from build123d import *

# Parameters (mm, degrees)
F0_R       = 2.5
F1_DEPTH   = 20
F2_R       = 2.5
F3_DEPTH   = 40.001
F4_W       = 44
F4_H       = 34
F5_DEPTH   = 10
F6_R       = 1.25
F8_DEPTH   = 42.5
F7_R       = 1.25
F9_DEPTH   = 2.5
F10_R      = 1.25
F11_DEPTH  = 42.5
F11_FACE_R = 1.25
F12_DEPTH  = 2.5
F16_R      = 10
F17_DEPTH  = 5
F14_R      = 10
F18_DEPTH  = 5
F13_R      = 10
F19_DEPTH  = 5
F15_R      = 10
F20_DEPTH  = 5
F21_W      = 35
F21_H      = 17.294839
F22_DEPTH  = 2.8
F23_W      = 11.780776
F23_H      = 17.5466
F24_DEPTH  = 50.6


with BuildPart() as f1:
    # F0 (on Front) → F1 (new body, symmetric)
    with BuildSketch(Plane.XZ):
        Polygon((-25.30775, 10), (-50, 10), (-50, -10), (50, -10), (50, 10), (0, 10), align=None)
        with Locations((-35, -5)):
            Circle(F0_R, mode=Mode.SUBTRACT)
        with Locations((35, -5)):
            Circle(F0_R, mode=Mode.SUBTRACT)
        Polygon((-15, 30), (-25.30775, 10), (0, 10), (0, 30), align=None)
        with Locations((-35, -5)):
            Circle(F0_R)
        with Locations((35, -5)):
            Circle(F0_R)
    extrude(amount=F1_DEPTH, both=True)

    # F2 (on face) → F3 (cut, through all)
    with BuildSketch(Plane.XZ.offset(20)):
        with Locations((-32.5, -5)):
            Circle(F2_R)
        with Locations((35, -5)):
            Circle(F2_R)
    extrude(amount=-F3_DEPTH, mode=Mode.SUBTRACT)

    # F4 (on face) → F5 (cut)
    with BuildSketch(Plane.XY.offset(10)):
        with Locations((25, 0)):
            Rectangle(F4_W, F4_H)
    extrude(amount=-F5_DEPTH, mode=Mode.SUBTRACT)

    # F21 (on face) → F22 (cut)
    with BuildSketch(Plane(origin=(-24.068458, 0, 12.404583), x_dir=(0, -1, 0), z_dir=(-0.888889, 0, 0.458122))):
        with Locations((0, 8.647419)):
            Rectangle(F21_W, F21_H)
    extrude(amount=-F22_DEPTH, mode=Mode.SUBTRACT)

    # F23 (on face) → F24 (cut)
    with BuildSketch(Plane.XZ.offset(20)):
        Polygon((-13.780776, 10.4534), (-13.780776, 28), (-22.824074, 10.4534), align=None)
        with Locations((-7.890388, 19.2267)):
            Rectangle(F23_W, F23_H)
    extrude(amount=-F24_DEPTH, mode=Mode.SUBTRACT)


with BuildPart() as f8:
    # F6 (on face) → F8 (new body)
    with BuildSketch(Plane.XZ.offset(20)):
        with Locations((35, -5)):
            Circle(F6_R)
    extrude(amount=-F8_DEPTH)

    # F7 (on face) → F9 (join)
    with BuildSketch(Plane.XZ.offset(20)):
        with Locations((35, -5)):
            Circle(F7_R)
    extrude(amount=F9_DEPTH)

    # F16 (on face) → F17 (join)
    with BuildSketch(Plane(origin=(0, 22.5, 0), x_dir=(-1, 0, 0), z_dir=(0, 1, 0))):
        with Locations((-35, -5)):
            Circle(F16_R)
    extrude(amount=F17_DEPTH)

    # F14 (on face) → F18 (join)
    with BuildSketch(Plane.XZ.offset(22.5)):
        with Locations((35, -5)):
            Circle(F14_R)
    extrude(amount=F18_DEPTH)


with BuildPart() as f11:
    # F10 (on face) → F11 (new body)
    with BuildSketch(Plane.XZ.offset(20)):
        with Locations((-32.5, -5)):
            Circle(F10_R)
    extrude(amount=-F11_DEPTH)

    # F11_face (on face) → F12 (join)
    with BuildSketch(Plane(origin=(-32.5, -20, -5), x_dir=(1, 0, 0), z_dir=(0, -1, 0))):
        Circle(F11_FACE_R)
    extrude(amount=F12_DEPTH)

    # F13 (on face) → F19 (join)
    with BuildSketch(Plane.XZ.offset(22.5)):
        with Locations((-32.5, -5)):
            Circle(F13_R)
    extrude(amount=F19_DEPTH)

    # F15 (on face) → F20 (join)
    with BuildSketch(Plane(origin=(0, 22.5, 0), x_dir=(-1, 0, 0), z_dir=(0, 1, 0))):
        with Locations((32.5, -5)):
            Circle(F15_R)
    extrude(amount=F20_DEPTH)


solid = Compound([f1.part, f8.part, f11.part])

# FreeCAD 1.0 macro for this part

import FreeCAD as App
import Part
import Sketcher


def add_polygon(sketch, points):
    """Adds a closed chain of lines whose ends are joined by coincident constraints."""
    first, n = sketch.GeometryCount, len(points)
    for a, b in zip(points, points[1:] + points[:1]):
        sketch.addGeometry(Part.LineSegment(App.Vector(*a, 0), App.Vector(*b, 0)), False)
    for i in range(n):
        sketch.addConstraint(Sketcher.Constraint("Coincident", first + i, 2, first + (i + 1) % n, 1))

doc = App.newDocument("Part")
body = doc.addObject("PartDesign::Body", "Body")

# Sketch on XZ plane
sketch1 = doc.addObject("Sketcher::SketchObject", "Sketch")
body.addObject(sketch1)
sketch1.AttachmentSupport = (doc.XZ_Plane, [""])
sketch1.MapMode = "FlatFace"
add_polygon(sketch1, [(-50, 10), (-50, -10), (50, -10), (50, 10), (0, 10), (0, 30), (-15, 30), (-25, 10)])  # lines 0-7
sketch1.addConstraint([
    Sketcher.Constraint("Vertical", 0),
    Sketcher.Constraint("Horizontal", 1),
    Sketcher.Constraint("Vertical", 2),
    Sketcher.Constraint("Horizontal", 3),
    Sketcher.Constraint("Vertical", 4),
    Sketcher.Constraint("Horizontal", 5),
    Sketcher.Constraint("Horizontal", 7),
    Sketcher.Constraint("Symmetric", 0, 2, 2, 2, -1, 1),
    Sketcher.Constraint("PointOnObject", 3, 2, -2),
    Sketcher.Constraint("Horizontal", 3, 2, 6, 2),
    Sketcher.Constraint("Equal", 2, 4),
    Sketcher.Constraint("DistanceX", 1, 1, 1, 2, 100.0),
    Sketcher.Constraint("DistanceX", 5, 2, 5, 1, 15.0),
    Sketcher.Constraint("DistanceY", 0, 2, 0, 1, 20.0),
    Sketcher.Constraint("DistanceX", 7, 2, 7, 1, 24.69225),
])
pad1 = doc.addObject("PartDesign::Pad", "Pad")
body.addObject(pad1)
pad1.Profile = sketch1
pad1.Length = 40
pad1.Midplane = True

# Sketch on XZ plane
sketch2 = doc.addObject("Sketcher::SketchObject", "Sketch001")
body.addObject(sketch2)
sketch2.AttachmentSupport = (doc.XZ_Plane, [""])
sketch2.MapMode = "FlatFace"
sketch2.AttachmentOffset = App.Placement(App.Vector(0, 0, 20), App.Rotation())
sketch2.addGeometry([
    Part.Circle(App.Vector(-32.5, -5, 0), App.Vector(0, 0, 1), 2.5),
    Part.Circle(App.Vector(35, -5, 0), App.Vector(0, 0, 1), 2.5),
], False)
sketch2.addConstraint([
    Sketcher.Constraint("Equal", 0, 1),
    Sketcher.Constraint("Horizontal", 0, 3, 1, 3),
    Sketcher.Constraint("Diameter", 0, 5.0),
    Sketcher.Constraint("DistanceY", 0, 3, -1, 1, 5.0),
    Sketcher.Constraint("DistanceX", -1, 1, 1, 3, 35.0),
    Sketcher.Constraint("DistanceX", 0, 3, -1, 1, 32.5),
])
pocket1 = doc.addObject("PartDesign::Pocket", "Pocket")
body.addObject(pocket1)
pocket1.Profile = sketch2
pocket1.Type = "ThroughAll"

# Sketch on XY plane
sketch3 = doc.addObject("Sketcher::SketchObject", "Sketch002")
body.addObject(sketch3)
sketch3.AttachmentSupport = (doc.XY_Plane, [""])
sketch3.MapMode = "FlatFace"
sketch3.AttachmentOffset = App.Placement(App.Vector(0, 0, 10), App.Rotation())
add_polygon(sketch3, [(3, 17), (3, -17), (47, -17), (47, 17)])  # lines 0-3
sketch3.addConstraint([
    Sketcher.Constraint("Vertical", 0),
    Sketcher.Constraint("Horizontal", 1),
    Sketcher.Constraint("Vertical", 2),
    Sketcher.Constraint("Horizontal", 3),
    Sketcher.Constraint("DistanceX", 1, 1, 1, 2, 44.0),
    Sketcher.Constraint("DistanceY", 0, 2, 0, 1, 34.0),
    Sketcher.Constraint("DistanceX", -1, 1, 0, 2, 3.0),
    Sketcher.Constraint("DistanceY", 0, 2, -1, 1, 17.0),
])
pocket2 = doc.addObject("PartDesign::Pocket", "Pocket001")
body.addObject(pocket2)
pocket2.Profile = sketch3
pocket2.Length = 10

# Sketch on an angled plane
sketch4 = doc.addObject("Sketcher::SketchObject", "Sketch003")
body.addObject(sketch4)
sketch4.Placement = App.Placement(App.Vector(-24.068458, 0, 12.404583), App.Rotation(App.Vector(0, -1, 0), App.Vector(0.458122133, 0, 0.888889257), App.Vector(-0.888889257, 0, 0.458122133), "ZXY"))
add_polygon(sketch4, [(-18, 17), (-18, 0), (18, 0), (18, 17)])  # lines 0-3
sketch4.addConstraint([
    Sketcher.Constraint("Vertical", 0),
    Sketcher.Constraint("Horizontal", 1),
    Sketcher.Constraint("Vertical", 2),
    Sketcher.Constraint("Horizontal", 3),
    Sketcher.Constraint("Symmetric", 0, 2, 1, 2, -1, 1),
    Sketcher.Constraint("DistanceX", 1, 1, 1, 2, 35.0),
    Sketcher.Constraint("DistanceY", 0, 2, 0, 1, 17.294839),
])
pocket3 = doc.addObject("PartDesign::Pocket", "Pocket002")
body.addObject(pocket3)
pocket3.Profile = sketch4
pocket3.Length = 2.8

# Sketch on XZ plane
sketch5 = doc.addObject("Sketcher::SketchObject", "Sketch004")
body.addObject(sketch5)
sketch5.AttachmentSupport = (doc.XZ_Plane, [""])
sketch5.MapMode = "FlatFace"
sketch5.AttachmentOffset = App.Placement(App.Vector(0, 0, 20), App.Rotation())
add_polygon(sketch5, [(-14, 28), (-23, 10), (-2, 10), (-2, 28)])  # lines 0-3
sketch5.addConstraint([
    Sketcher.Constraint("Horizontal", 1),
    Sketcher.Constraint("Vertical", 2),
    Sketcher.Constraint("Horizontal", 3),
    Sketcher.Constraint("DistanceX", 1, 2, -1, 1, 2.0),
    Sketcher.Constraint("DistanceY", -1, 1, 2, 2, 28.0),
    Sketcher.Constraint("DistanceY", 2, 1, 2, 2, 17.5466),
    Sketcher.Constraint("Distance", 0, 19.739919),
    Sketcher.Constraint("DistanceX", 1, 1, 1, 2, 20.824074),
])
pocket4 = doc.addObject("PartDesign::Pocket", "Pocket003")
body.addObject(pocket4)
pocket4.Profile = sketch5
pocket4.Length = 50.6
body2 = doc.addObject("PartDesign::Body", "Body001")

# Sketch on XZ plane
sketch6 = doc.addObject("Sketcher::SketchObject", "Sketch005")
body2.addObject(sketch6)
sketch6.AttachmentSupport = (doc.getObject("XZ_Plane001"), [""])
sketch6.MapMode = "FlatFace"
sketch6.AttachmentOffset = App.Placement(App.Vector(0, 0, 20), App.Rotation())
sketch6.addGeometry(Part.Circle(App.Vector(35, -5, 0), App.Vector(0, 0, 1), 1.2), False)
sketch6.addConstraint([
    Sketcher.Constraint("Diameter", 0, 2.5),
    Sketcher.Constraint("DistanceX", -1, 1, 0, 3, 35.0),
    Sketcher.Constraint("DistanceY", 0, 3, -1, 1, 5.0),
])
pad2 = doc.addObject("PartDesign::Pad", "Pad001")
body2.addObject(pad2)
pad2.Profile = sketch6
pad2.Length = 42.5
pad2.Reversed = True

# Sketch on XZ plane
sketch7 = doc.addObject("Sketcher::SketchObject", "Sketch006")
body2.addObject(sketch7)
sketch7.AttachmentSupport = (doc.getObject("XZ_Plane001"), [""])
sketch7.MapMode = "FlatFace"
sketch7.AttachmentOffset = App.Placement(App.Vector(0, 0, 20), App.Rotation())
sketch7.addGeometry(Part.Circle(App.Vector(35, -5, 0), App.Vector(0, 0, 1), 1.2), False)
sketch7.addConstraint([
    Sketcher.Constraint("Diameter", 0, 2.5),
    Sketcher.Constraint("DistanceX", -1, 1, 0, 3, 35.0),
    Sketcher.Constraint("DistanceY", 0, 3, -1, 1, 5.0),
])
pad3 = doc.addObject("PartDesign::Pad", "Pad002")
body2.addObject(pad3)
pad3.Profile = sketch7
pad3.Length = 2.5

# Sketch on XZ plane
sketch8 = doc.addObject("Sketcher::SketchObject", "Sketch007")
body2.addObject(sketch8)
sketch8.AttachmentSupport = (doc.getObject("XZ_Plane001"), [""])
sketch8.MapMode = "FlatFace"
sketch8.AttachmentOffset = App.Placement(App.Vector(0, 0, -22.5), App.Rotation())
sketch8.addGeometry(Part.Circle(App.Vector(35, -5, 0), App.Vector(0, 0, 1), 10), False)
sketch8.addConstraint([
    Sketcher.Constraint("Diameter", 0, 20.0),
    Sketcher.Constraint("DistanceX", -1, 1, 0, 3, 35.0),
    Sketcher.Constraint("DistanceY", 0, 3, -1, 1, 5.0),
])
pad4 = doc.addObject("PartDesign::Pad", "Pad003")
body2.addObject(pad4)
pad4.Profile = sketch8
pad4.Length = 5
pad4.Reversed = True

# Sketch on XZ plane
sketch9 = doc.addObject("Sketcher::SketchObject", "Sketch008")
body2.addObject(sketch9)
sketch9.AttachmentSupport = (doc.getObject("XZ_Plane001"), [""])
sketch9.MapMode = "FlatFace"
sketch9.AttachmentOffset = App.Placement(App.Vector(0, 0, 22.5), App.Rotation())
sketch9.addGeometry(Part.Circle(App.Vector(35, -5, 0), App.Vector(0, 0, 1), 10), False)
sketch9.addConstraint([
    Sketcher.Constraint("Diameter", 0, 20.0),
    Sketcher.Constraint("DistanceX", -1, 1, 0, 3, 35.0),
    Sketcher.Constraint("DistanceY", 0, 3, -1, 1, 5.0),
])
pad5 = doc.addObject("PartDesign::Pad", "Pad004")
body2.addObject(pad5)
pad5.Profile = sketch9
pad5.Length = 5
body3 = doc.addObject("PartDesign::Body", "Body002")

# Sketch on XZ plane
sketch10 = doc.addObject("Sketcher::SketchObject", "Sketch009")
body3.addObject(sketch10)
sketch10.AttachmentSupport = (doc.getObject("XZ_Plane002"), [""])
sketch10.MapMode = "FlatFace"
sketch10.AttachmentOffset = App.Placement(App.Vector(0, 0, 20), App.Rotation())
sketch10.addGeometry(Part.Circle(App.Vector(-32.5, -5, 0), App.Vector(0, 0, 1), 1.2), False)
sketch10.addConstraint([
    Sketcher.Constraint("Diameter", 0, 2.5),
    Sketcher.Constraint("DistanceY", 0, 3, -1, 1, 5.0),
    Sketcher.Constraint("DistanceX", 0, 3, -1, 1, 32.5),
])
pad6 = doc.addObject("PartDesign::Pad", "Pad005")
body3.addObject(pad6)
pad6.Profile = sketch10
pad6.Length = 42.5
pad6.Reversed = True

# Sketch on XZ plane
sketch11 = doc.addObject("Sketcher::SketchObject", "Sketch010")
body3.addObject(sketch11)
sketch11.AttachmentSupport = (doc.getObject("XZ_Plane002"), [""])
sketch11.MapMode = "FlatFace"
sketch11.AttachmentOffset = App.Placement(App.Vector(0, 0, 20), App.Rotation())
sketch11.addGeometry(Part.Circle(App.Vector(-32.5, -5, 0), App.Vector(0, 0, 1), 1.2), False)
sketch11.addConstraint([
    Sketcher.Constraint("Diameter", 0, 2.5),
    Sketcher.Constraint("DistanceY", 0, 3, -1, 1, 5.0),
    Sketcher.Constraint("DistanceX", 0, 3, -1, 1, 32.5),
])
pad7 = doc.addObject("PartDesign::Pad", "Pad006")
body3.addObject(pad7)
pad7.Profile = sketch11
pad7.Length = 2.5

# Sketch on XZ plane
sketch12 = doc.addObject("Sketcher::SketchObject", "Sketch011")
body3.addObject(sketch12)
sketch12.AttachmentSupport = (doc.getObject("XZ_Plane002"), [""])
sketch12.MapMode = "FlatFace"
sketch12.AttachmentOffset = App.Placement(App.Vector(0, 0, 22.5), App.Rotation())
sketch12.addGeometry(Part.Circle(App.Vector(-32, -5, 0), App.Vector(0, 0, 1), 10), False)
sketch12.addConstraint([
    Sketcher.Constraint("Diameter", 0, 20.0),
    Sketcher.Constraint("DistanceY", 0, 3, -1, 1, 5.0),
    Sketcher.Constraint("DistanceX", 0, 3, -1, 1, 32.5),
])
pad8 = doc.addObject("PartDesign::Pad", "Pad007")
body3.addObject(pad8)
pad8.Profile = sketch12
pad8.Length = 5

# Sketch on XZ plane
sketch13 = doc.addObject("Sketcher::SketchObject", "Sketch012")
body3.addObject(sketch13)
sketch13.AttachmentSupport = (doc.getObject("XZ_Plane002"), [""])
sketch13.MapMode = "FlatFace"
sketch13.AttachmentOffset = App.Placement(App.Vector(0, 0, -22.5), App.Rotation())
sketch13.addGeometry(Part.Circle(App.Vector(-32, -5, 0), App.Vector(0, 0, 1), 10), False)
sketch13.addConstraint([
    Sketcher.Constraint("Diameter", 0, 20.0),
    Sketcher.Constraint("DistanceY", 0, 3, -1, 1, 5.0),
    Sketcher.Constraint("DistanceX", 0, 3, -1, 1, 32.5),
])
pad9 = doc.addObject("PartDesign::Pad", "Pad008")
body3.addObject(pad9)
pad9.Profile = sketch13
pad9.Length = 5
pad9.Reversed = True

doc.recompute()
